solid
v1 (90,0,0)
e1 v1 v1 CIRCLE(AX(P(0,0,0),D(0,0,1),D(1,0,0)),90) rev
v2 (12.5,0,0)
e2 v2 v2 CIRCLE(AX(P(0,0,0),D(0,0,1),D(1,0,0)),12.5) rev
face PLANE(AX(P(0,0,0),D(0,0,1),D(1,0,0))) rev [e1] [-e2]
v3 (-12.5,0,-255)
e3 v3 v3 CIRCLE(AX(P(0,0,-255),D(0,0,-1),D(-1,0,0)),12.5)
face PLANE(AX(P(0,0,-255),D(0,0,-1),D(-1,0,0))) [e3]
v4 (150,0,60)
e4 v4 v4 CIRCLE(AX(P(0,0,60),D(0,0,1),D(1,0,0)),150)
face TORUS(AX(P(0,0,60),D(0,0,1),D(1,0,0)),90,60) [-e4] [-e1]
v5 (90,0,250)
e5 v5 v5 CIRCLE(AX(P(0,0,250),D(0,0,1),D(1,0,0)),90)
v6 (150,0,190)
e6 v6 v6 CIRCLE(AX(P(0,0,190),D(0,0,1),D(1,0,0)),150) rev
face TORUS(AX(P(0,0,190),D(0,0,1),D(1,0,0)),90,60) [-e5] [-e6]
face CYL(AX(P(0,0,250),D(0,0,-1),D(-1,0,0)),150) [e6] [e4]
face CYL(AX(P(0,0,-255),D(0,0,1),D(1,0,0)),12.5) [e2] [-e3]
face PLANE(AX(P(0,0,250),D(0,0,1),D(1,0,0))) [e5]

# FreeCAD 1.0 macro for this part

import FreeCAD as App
import Part
import Sketcher
from FreeCAD import Vector


def edges_at(feature, points):
    """Names of the edges that pass closest to the given points."""
    edges = feature.Shape.Edges
    near = lambda p: min(range(len(edges)), key=lambda i: edges[i].distToShape(Part.Vertex(*p))[0])
    return sorted({f"Edge{near(p) + 1}" for p in points})

doc = App.newDocument("Part")
params = doc.addObject("Spreadsheet::Sheet", "Params")
for row, (alias, value) in enumerate([
    ("sketch1_diameter", "300 mm"),
    ("pad1_length", "250 mm"),
    ("sketch2_diameter", "25 mm"),
    ("pad2_length", "255 mm"),
    ("fillet_radius", "60 mm"),
], start=1):
    params.set(f"A{row}", alias)
    params.set(f"B{row}", "=" + value)
    params.setAlias(f"B{row}", alias)

body = doc.addObject("PartDesign::Body", "Body")

# Sketch on XY plane
sketch1 = doc.addObject("Sketcher::SketchObject", "Sketch")
body.addObject(sketch1)
sketch1.AttachmentSupport = (doc.XY_Plane, [""])
sketch1.MapMode = "FlatFace"
sketch1.addGeometry(Part.Circle(Vector(0, 0, 0), Vector(0, 0, 1), 150), False)
sketch1.addConstraint([
    Sketcher.Constraint("Coincident", 0, 3, -1, 1),
    Sketcher.Constraint("Diameter", 0, 300.0),
])
sketch1.setExpression("Constraints[1]", "Params.sketch1_diameter")
pad1 = doc.addObject("PartDesign::Pad", "Pad")
body.addObject(pad1)
pad1.Profile = sketch1
pad1.setExpression("Length", "Params.pad1_length")

# Sketch on XY plane
sketch2 = doc.addObject("Sketcher::SketchObject", "Sketch001")
body.addObject(sketch2)
sketch2.AttachmentSupport = (doc.XY_Plane, [""])
sketch2.MapMode = "FlatFace"
sketch2.addGeometry(Part.Circle(Vector(0, 0, 0), Vector(0, 0, 1), 12), False)
sketch2.addConstraint([
    Sketcher.Constraint("Coincident", 0, 3, -1, 1),
    Sketcher.Constraint("Diameter", 0, 25.0),
])
sketch2.setExpression("Constraints[1]", "Params.sketch2_diameter")
pad2 = doc.addObject("PartDesign::Pad", "Pad001")
body.addObject(pad2)
pad2.Profile = sketch2
pad2.setExpression("Length", "Params.pad2_length")
pad2.Reversed = True
doc.recompute()

fillet = doc.addObject("PartDesign::Fillet", "Fillet")
body.addObject(fillet)
fillet.Base = (pad2, edges_at(pad2, [(-150, 0, 0), (-150, 0, 250)]))
fillet.setExpression("Radius", "Params.fillet_radius")

doc.recompute()
